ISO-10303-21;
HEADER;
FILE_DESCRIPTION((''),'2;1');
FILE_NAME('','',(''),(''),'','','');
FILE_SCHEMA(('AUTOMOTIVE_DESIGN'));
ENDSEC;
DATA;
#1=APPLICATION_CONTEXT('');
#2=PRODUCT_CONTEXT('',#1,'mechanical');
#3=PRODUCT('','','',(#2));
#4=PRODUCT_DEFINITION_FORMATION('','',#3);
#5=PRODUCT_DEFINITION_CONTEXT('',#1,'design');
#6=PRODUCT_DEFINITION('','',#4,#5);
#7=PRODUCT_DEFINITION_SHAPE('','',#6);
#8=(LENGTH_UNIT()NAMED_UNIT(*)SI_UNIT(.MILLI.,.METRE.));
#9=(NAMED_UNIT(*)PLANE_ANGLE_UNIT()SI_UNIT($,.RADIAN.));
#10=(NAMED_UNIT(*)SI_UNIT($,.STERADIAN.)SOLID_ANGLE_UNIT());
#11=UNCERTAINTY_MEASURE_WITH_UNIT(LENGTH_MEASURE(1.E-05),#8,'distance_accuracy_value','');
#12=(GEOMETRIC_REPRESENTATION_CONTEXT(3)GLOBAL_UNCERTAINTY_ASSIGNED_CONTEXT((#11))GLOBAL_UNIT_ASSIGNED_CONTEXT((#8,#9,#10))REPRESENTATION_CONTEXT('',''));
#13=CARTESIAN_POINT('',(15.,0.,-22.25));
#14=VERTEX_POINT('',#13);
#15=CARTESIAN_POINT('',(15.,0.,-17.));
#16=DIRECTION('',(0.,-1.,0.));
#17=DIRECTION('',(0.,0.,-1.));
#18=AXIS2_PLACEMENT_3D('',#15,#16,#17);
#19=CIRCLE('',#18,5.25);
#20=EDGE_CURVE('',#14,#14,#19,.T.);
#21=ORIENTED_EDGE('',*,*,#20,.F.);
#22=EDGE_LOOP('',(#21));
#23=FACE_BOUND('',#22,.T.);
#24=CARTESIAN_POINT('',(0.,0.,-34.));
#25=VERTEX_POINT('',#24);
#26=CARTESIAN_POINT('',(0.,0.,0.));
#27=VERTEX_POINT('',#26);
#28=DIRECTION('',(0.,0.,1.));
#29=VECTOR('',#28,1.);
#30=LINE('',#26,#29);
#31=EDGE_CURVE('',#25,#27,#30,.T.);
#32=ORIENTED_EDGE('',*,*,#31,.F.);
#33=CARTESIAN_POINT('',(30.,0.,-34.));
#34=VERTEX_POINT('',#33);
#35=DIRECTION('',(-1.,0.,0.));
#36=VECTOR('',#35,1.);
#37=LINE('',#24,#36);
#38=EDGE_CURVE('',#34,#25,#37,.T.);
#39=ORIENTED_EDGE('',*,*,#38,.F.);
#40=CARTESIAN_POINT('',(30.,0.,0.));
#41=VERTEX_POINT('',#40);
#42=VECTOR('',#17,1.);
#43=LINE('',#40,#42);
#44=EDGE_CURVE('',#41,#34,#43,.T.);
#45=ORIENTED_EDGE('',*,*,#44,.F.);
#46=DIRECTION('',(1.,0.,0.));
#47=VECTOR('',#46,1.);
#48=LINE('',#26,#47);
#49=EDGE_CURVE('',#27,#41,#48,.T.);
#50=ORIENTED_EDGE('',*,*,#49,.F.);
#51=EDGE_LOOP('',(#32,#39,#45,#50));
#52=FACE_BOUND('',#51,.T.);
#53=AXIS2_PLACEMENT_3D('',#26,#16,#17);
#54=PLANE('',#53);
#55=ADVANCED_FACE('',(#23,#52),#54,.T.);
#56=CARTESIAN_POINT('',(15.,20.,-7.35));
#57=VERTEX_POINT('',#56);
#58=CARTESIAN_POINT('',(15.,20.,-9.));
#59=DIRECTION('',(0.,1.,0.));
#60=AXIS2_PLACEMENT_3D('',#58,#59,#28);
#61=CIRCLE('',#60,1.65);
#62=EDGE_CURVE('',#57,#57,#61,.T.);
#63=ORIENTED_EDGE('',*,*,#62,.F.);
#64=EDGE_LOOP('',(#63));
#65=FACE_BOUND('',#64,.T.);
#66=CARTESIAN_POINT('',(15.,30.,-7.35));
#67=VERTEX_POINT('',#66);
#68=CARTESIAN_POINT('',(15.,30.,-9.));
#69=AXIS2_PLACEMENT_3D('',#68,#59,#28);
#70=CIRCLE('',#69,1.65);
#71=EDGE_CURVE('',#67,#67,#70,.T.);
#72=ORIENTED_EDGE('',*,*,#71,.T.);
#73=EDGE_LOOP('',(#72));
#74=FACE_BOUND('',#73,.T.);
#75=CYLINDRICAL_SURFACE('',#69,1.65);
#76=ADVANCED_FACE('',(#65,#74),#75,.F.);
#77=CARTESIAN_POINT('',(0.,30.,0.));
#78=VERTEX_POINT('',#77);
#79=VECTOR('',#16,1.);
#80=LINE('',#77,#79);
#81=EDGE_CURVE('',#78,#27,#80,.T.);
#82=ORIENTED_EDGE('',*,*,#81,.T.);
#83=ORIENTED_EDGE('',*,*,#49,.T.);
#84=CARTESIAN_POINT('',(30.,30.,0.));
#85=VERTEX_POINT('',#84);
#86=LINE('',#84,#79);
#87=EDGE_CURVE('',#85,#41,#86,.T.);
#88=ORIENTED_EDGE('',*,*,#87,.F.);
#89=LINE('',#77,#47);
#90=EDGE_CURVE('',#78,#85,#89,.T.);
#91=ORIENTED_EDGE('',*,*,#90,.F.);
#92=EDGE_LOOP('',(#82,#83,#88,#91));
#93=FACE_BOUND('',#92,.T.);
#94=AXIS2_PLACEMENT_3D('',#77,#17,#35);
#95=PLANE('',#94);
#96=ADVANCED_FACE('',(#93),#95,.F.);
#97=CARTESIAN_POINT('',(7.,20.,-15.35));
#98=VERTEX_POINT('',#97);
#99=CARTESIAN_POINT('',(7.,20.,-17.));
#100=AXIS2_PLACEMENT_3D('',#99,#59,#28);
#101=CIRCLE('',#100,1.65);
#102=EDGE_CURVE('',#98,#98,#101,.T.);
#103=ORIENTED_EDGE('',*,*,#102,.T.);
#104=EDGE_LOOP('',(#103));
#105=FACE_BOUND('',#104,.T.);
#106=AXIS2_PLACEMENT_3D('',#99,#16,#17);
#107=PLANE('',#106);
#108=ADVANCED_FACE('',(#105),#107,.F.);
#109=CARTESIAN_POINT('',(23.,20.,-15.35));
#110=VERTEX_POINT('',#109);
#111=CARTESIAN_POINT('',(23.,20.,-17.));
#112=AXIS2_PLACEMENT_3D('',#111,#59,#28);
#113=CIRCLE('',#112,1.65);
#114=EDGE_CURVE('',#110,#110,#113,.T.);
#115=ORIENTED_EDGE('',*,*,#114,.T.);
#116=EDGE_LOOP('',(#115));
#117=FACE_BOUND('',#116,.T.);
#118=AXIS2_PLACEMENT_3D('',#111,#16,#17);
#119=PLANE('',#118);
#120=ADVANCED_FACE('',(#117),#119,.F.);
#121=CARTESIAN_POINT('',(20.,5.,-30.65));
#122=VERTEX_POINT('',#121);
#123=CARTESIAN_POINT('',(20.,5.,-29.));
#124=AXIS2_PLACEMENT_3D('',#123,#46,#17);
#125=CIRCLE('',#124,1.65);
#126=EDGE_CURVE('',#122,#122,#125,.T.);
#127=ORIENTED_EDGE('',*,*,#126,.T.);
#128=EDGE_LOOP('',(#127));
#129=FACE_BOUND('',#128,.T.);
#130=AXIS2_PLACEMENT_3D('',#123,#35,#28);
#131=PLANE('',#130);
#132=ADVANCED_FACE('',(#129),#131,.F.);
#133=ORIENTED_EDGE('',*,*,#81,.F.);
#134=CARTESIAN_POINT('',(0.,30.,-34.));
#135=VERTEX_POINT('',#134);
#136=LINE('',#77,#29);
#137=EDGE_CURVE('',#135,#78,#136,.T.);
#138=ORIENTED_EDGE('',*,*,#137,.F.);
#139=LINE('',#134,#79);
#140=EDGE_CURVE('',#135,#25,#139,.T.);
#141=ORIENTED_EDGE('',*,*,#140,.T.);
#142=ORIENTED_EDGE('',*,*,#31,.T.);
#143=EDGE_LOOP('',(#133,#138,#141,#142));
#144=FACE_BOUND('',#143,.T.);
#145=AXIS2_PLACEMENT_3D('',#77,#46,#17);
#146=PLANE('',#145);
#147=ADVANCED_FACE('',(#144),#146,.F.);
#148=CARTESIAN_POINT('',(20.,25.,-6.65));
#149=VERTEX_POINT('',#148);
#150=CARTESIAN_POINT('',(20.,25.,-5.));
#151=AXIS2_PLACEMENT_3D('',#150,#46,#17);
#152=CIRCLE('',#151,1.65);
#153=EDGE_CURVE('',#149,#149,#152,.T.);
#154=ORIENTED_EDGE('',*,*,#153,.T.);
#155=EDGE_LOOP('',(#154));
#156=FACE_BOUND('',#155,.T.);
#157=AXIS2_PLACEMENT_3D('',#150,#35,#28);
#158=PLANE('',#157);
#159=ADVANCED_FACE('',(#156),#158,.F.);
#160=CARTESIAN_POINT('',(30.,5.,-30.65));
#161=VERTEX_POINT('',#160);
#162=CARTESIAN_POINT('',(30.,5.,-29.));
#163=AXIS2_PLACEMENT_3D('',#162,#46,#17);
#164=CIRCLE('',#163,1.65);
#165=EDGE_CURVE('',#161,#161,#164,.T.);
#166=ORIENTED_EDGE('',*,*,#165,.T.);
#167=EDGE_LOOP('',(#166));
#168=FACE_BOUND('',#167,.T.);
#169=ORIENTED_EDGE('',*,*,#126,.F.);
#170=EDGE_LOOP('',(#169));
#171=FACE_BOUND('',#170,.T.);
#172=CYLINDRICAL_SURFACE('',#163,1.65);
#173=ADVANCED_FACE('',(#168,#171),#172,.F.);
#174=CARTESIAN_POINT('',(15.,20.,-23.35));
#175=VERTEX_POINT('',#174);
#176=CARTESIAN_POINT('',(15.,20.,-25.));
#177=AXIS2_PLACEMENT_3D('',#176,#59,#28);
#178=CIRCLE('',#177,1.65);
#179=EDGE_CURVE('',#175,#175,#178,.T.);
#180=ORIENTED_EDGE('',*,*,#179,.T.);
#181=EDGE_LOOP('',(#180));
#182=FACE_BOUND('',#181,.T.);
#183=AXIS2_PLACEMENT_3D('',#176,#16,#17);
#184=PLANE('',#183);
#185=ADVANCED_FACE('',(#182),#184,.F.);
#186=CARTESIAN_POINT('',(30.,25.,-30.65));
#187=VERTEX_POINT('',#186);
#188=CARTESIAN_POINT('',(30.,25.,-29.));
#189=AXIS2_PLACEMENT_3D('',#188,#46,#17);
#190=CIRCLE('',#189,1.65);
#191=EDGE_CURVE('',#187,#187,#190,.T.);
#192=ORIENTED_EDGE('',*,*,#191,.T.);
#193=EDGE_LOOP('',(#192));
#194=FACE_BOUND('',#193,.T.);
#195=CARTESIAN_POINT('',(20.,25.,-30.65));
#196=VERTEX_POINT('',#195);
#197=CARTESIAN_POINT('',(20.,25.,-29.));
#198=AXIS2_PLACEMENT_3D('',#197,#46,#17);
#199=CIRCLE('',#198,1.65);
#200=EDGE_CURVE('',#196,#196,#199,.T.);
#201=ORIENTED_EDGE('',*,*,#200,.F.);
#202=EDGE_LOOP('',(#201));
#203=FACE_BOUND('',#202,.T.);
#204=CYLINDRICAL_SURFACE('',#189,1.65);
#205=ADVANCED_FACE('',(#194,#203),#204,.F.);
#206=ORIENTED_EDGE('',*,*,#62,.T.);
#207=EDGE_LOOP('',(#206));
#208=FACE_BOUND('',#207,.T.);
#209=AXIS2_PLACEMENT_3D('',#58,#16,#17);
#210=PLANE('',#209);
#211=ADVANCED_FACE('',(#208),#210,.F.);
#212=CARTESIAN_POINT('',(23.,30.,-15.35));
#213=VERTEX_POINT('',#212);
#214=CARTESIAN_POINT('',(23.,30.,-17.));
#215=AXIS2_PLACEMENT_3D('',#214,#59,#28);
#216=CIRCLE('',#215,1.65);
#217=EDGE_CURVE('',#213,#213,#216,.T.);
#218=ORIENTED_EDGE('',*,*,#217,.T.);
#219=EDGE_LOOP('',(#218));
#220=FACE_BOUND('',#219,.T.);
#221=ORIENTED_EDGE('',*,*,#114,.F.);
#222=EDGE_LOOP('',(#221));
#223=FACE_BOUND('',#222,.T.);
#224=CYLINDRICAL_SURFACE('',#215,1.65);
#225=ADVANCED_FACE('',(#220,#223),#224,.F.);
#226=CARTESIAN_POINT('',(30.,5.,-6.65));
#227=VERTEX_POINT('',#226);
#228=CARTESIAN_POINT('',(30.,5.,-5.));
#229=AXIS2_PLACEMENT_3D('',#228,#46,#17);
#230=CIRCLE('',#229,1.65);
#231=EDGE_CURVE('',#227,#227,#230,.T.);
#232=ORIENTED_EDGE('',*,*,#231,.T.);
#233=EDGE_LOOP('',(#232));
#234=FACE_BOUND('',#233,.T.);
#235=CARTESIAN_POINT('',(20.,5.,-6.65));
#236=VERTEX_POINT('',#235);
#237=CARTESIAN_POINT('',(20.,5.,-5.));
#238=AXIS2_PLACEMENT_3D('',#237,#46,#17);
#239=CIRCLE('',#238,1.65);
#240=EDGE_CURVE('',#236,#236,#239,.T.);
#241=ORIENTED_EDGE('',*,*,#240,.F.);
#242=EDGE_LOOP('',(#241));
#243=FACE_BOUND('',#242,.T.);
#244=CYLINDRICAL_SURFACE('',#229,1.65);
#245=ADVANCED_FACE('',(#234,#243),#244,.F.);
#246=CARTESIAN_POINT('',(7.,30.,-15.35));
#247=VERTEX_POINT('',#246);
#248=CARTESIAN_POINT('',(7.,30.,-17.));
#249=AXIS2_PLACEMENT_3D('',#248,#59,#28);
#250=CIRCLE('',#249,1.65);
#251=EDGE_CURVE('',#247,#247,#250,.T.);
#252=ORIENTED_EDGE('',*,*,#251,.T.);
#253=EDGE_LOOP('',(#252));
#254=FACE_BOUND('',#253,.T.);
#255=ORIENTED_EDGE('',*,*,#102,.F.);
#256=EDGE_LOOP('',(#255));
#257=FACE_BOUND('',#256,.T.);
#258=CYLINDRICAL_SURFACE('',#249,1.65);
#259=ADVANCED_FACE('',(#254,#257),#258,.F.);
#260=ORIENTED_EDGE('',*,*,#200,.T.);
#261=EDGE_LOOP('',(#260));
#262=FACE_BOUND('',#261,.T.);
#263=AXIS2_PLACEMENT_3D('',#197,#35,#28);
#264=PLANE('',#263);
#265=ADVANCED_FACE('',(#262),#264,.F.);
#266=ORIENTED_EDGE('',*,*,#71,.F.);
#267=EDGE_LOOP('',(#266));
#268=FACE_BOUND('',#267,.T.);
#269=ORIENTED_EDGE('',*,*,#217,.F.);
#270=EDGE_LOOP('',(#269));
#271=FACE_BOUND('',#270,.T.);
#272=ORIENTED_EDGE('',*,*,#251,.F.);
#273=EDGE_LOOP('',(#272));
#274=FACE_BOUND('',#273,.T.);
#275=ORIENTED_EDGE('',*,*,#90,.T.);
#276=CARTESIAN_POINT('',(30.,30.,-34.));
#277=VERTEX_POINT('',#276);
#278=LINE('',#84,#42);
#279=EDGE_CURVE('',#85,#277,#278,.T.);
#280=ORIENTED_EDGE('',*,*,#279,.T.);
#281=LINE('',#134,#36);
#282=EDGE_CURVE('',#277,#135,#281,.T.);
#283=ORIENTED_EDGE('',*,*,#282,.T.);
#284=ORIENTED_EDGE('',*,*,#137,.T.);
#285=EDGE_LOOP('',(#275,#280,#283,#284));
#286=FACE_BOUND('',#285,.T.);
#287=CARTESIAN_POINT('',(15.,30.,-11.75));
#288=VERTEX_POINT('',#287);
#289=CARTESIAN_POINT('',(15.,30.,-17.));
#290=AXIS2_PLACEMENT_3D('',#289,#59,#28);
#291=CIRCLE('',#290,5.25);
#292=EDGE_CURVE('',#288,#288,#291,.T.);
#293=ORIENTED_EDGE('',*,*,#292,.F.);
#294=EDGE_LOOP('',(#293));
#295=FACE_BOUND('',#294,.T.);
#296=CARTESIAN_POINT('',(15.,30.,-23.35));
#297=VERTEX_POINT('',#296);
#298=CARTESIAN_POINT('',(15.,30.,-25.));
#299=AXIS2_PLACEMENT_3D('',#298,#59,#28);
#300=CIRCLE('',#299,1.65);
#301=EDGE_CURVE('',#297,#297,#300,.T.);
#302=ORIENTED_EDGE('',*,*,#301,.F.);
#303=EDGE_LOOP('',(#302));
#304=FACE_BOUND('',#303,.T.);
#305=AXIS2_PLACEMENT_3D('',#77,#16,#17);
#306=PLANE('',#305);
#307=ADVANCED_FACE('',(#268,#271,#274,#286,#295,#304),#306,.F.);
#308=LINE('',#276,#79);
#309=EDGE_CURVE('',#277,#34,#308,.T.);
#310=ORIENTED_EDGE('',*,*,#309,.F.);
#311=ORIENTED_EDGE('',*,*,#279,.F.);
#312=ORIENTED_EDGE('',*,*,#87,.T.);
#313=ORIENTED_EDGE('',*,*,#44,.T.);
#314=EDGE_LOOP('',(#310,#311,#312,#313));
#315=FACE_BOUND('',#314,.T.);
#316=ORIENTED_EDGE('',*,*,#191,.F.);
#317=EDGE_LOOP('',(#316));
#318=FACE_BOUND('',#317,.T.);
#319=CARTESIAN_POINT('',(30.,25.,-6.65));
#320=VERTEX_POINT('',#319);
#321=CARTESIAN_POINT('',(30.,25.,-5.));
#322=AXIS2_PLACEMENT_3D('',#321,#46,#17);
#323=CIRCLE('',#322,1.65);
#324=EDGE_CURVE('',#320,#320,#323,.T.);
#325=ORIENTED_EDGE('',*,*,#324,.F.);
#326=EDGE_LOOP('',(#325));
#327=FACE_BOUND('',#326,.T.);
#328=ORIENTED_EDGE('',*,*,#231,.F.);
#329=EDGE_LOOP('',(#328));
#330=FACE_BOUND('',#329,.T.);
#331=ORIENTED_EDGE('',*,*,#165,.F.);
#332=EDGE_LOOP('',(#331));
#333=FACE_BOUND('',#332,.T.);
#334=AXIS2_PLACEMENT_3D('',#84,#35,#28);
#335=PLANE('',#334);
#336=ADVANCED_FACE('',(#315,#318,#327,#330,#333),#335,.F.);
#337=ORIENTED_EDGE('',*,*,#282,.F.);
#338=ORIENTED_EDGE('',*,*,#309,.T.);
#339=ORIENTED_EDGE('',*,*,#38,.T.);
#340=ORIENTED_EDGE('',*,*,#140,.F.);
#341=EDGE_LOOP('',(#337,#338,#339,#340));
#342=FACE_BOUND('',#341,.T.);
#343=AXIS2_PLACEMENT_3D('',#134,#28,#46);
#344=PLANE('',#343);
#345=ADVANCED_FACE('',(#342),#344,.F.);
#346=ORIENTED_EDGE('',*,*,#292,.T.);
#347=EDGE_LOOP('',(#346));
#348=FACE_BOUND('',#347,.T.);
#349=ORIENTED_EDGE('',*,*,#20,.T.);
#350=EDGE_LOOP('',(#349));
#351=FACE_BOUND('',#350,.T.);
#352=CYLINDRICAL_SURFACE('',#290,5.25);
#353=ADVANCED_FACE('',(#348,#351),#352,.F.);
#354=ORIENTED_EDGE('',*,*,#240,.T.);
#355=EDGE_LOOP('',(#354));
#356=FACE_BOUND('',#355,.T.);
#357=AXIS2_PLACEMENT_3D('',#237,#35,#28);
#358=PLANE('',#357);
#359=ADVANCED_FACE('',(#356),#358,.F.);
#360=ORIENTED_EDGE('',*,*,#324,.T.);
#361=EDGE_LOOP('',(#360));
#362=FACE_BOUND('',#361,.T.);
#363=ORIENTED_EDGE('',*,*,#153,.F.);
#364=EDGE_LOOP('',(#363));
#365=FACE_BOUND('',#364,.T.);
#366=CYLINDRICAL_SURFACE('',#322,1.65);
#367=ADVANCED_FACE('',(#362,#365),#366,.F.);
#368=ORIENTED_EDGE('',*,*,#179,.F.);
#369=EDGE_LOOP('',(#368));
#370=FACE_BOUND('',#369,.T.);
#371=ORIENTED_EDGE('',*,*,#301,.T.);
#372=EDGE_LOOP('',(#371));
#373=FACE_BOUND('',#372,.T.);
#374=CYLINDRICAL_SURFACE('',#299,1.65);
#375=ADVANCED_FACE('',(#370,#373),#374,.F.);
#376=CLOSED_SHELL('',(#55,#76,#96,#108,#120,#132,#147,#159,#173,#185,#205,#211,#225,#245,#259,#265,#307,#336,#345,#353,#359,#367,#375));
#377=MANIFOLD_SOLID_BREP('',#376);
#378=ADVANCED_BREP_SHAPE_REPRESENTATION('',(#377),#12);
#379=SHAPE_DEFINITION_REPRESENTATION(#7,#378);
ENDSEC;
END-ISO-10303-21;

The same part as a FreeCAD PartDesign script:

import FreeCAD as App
import Part
import Sketcher
from FreeCAD import Vector


def add_polygon(sketch, points):
    """Adds a closed chain of lines whose ends are joined by coincident constraints."""
    first, n = sketch.GeometryCount, len(points)
    for a, b in zip(points, points[1:] + points[:1]):
        sketch.addGeometry(Part.LineSegment(App.Vector(*a, 0), App.Vector(*b, 0)), False)
    for i in range(n):
        sketch.addConstraint(Sketcher.Constraint("Coincident", first + i, 2, first + (i + 1) % n, 1))

doc = App.newDocument("Part")
body = doc.addObject("PartDesign::Body", "Body")

# Sketch on XZ plane
sketch1 = doc.addObject("Sketcher::SketchObject", "Sketch")
body.addObject(sketch1)
sketch1.AttachmentSupport = (doc.XZ_Plane, [""])
sketch1.MapMode = "FlatFace"
add_polygon(sketch1, [(0, -34), (0, 0), (30, 0), (30, -34)])  # lines 0-3
sketch1.addConstraint(Sketcher.Constraint("Vertical", 0))
sketch1.addConstraint(Sketcher.Constraint("Horizontal", 1))
sketch1.addConstraint(Sketcher.Constraint("Vertical", 2))
sketch1.addConstraint(Sketcher.Constraint("Horizontal", 3))
sketch1.addConstraint(Sketcher.Constraint("Coincident", 0, 2, -1, 1))
sketch1.addConstraint(Sketcher.Constraint("DistanceX", 1, 1, 1, 2, 30.0))
sketch1.addConstraint(Sketcher.Constraint("DistanceY", 0, 1, 0, 2, 34.0))
pad1 = doc.addObject("PartDesign::Pad", "Pad")
body.addObject(pad1)
pad1.Profile = sketch1
pad1.Length = 30
pad1.Reversed = True

# Sketch on YZ plane
sketch2 = doc.addObject("Sketcher::SketchObject", "Sketch001")
body.addObject(sketch2)
sketch2.AttachmentSupport = (doc.YZ_Plane, [""])
sketch2.MapMode = "FlatFace"
sketch2.AttachmentOffset = App.Placement(Vector(0, 0, 30), App.Rotation())
sketch2.addGeometry(Part.Circle(Vector(25, -5, 0), Vector(0, 0, 1), 1.65), False)
sketch2.addGeometry(Part.Circle(Vector(25, -29, 0), Vector(0, 0, 1), 1.65), False)
sketch2.addGeometry(Part.Circle(Vector(5, -5, 0), Vector(0, 0, 1), 1.65), False)
sketch2.addGeometry(Part.Circle(Vector(5, -29, 0), Vector(0, 0, 1), 1.65), False)
sketch2.addConstraint(Sketcher.Constraint("Equal", 0, 1))
sketch2.addConstraint(Sketcher.Constraint("Equal", 1, 2))
sketch2.addConstraint(Sketcher.Constraint("Equal", 2, 3))
sketch2.addConstraint(Sketcher.Constraint("Horizontal", 0, 3, 2, 3))
sketch2.addConstraint(Sketcher.Constraint("Horizontal", 1, 3, 3, 3))
sketch2.addConstraint(Sketcher.Constraint("Vertical", 0, 3, 1, 3))
sketch2.addConstraint(Sketcher.Constraint("Vertical", 2, 3, 3, 3))
sketch2.addConstraint(Sketcher.Constraint("Diameter", 0, 3.3))
sketch2.addConstraint(Sketcher.Constraint("DistanceX", -1, 1, 0, 3, 25.0))
sketch2.addConstraint(Sketcher.Constraint("DistanceY", 0, 3, -1, 1, 5.0))
sketch2.addConstraint(Sketcher.Constraint("DistanceY", 1, 3, -1, 1, 29.0))
sketch2.addConstraint(Sketcher.Constraint("DistanceX", -1, 1, 2, 3, 5.0))
doc.recompute()
hole = doc.addObject("PartDesign::Hole", "Hole")
body.addObject(hole)
hole.Profile = sketch2
hole.ThreadType = "None"
hole.Diameter = 3.3
hole.DepthType = "Dimension"
hole.Depth = 10
hole.DrillPoint = "Flat"

# Sketch on XZ plane
sketch3 = doc.addObject("Sketcher::SketchObject", "Sketch002")
body.addObject(sketch3)
sketch3.AttachmentSupport = (doc.XZ_Plane, [""])
sketch3.MapMode = "FlatFace"
sketch3.AttachmentOffset = App.Placement(Vector(0, 0, -30), App.Rotation())
sketch3.addGeometry(Part.Circle(Vector(7, -17, 0), Vector(0, 0, 1), 1.65), False)
sketch3.addGeometry(Part.Circle(Vector(15, -25, 0), Vector(0, 0, 1), 1.65), False)
sketch3.addGeometry(Part.Circle(Vector(23, -17, 0), Vector(0, 0, 1), 1.65), False)
sketch3.addGeometry(Part.Circle(Vector(15, -9, 0), Vector(0, 0, 1), 1.65), False)
sketch3.addConstraint(Sketcher.Constraint("Equal", 0, 1))
sketch3.addConstraint(Sketcher.Constraint("Equal", 1, 2))
sketch3.addConstraint(Sketcher.Constraint("Equal", 2, 3))
sketch3.addConstraint(Sketcher.Constraint("Horizontal", 0, 3, 2, 3))
sketch3.addConstraint(Sketcher.Constraint("Vertical", 1, 3, 3, 3))
sketch3.addConstraint(Sketcher.Constraint("Diameter", 0, 3.3))
sketch3.addConstraint(Sketcher.Constraint("DistanceX", -1, 1, 0, 3, 7.0))
sketch3.addConstraint(Sketcher.Constraint("DistanceY", 0, 3, -1, 1, 17.0))
sketch3.addConstraint(Sketcher.Constraint("DistanceX", -1, 1, 1, 3, 15.0))
sketch3.addConstraint(Sketcher.Constraint("DistanceY", 1, 3, -1, 1, 25.0))
sketch3.addConstraint(Sketcher.Constraint("DistanceX", -1, 1, 2, 3, 23.0))
sketch3.addConstraint(Sketcher.Constraint("DistanceY", 3, 3, -1, 1, 9.0))
doc.recompute()
hole2 = doc.addObject("PartDesign::Hole", "Hole001")
body.addObject(hole2)
hole2.Profile = sketch3
hole2.ThreadType = "None"
hole2.Diameter = 3.3
hole2.DepthType = "Dimension"
hole2.Depth = 10
hole2.DrillPoint = "Flat"
hole2.Reversed = True

# Sketch on XZ plane
sketch4 = doc.addObject("Sketcher::SketchObject", "Sketch003")
body.addObject(sketch4)
sketch4.AttachmentSupport = (doc.XZ_Plane, [""])
sketch4.MapMode = "FlatFace"
sketch4.AttachmentOffset = App.Placement(Vector(0, 0, -30), App.Rotation())
sketch4.addGeometry(Part.Circle(Vector(15, -17, 0), Vector(0, 0, 1), 5.25), False)
sketch4.addConstraint(Sketcher.Constraint("Diameter", 0, 10.5))
sketch4.addConstraint(Sketcher.Constraint("DistanceX", -1, 1, 0, 3, 15.0))
sketch4.addConstraint(Sketcher.Constraint("DistanceY", 0, 3, -1, 1, 17.0))
doc.recompute()
hole3 = doc.addObject("PartDesign::Hole", "Hole002")
body.addObject(hole3)
hole3.Profile = sketch4
hole3.ThreadType = "None"
hole3.Diameter = 10.5
hole3.DepthType = "ThroughAll"
hole3.Reversed = True

doc.recompute()
